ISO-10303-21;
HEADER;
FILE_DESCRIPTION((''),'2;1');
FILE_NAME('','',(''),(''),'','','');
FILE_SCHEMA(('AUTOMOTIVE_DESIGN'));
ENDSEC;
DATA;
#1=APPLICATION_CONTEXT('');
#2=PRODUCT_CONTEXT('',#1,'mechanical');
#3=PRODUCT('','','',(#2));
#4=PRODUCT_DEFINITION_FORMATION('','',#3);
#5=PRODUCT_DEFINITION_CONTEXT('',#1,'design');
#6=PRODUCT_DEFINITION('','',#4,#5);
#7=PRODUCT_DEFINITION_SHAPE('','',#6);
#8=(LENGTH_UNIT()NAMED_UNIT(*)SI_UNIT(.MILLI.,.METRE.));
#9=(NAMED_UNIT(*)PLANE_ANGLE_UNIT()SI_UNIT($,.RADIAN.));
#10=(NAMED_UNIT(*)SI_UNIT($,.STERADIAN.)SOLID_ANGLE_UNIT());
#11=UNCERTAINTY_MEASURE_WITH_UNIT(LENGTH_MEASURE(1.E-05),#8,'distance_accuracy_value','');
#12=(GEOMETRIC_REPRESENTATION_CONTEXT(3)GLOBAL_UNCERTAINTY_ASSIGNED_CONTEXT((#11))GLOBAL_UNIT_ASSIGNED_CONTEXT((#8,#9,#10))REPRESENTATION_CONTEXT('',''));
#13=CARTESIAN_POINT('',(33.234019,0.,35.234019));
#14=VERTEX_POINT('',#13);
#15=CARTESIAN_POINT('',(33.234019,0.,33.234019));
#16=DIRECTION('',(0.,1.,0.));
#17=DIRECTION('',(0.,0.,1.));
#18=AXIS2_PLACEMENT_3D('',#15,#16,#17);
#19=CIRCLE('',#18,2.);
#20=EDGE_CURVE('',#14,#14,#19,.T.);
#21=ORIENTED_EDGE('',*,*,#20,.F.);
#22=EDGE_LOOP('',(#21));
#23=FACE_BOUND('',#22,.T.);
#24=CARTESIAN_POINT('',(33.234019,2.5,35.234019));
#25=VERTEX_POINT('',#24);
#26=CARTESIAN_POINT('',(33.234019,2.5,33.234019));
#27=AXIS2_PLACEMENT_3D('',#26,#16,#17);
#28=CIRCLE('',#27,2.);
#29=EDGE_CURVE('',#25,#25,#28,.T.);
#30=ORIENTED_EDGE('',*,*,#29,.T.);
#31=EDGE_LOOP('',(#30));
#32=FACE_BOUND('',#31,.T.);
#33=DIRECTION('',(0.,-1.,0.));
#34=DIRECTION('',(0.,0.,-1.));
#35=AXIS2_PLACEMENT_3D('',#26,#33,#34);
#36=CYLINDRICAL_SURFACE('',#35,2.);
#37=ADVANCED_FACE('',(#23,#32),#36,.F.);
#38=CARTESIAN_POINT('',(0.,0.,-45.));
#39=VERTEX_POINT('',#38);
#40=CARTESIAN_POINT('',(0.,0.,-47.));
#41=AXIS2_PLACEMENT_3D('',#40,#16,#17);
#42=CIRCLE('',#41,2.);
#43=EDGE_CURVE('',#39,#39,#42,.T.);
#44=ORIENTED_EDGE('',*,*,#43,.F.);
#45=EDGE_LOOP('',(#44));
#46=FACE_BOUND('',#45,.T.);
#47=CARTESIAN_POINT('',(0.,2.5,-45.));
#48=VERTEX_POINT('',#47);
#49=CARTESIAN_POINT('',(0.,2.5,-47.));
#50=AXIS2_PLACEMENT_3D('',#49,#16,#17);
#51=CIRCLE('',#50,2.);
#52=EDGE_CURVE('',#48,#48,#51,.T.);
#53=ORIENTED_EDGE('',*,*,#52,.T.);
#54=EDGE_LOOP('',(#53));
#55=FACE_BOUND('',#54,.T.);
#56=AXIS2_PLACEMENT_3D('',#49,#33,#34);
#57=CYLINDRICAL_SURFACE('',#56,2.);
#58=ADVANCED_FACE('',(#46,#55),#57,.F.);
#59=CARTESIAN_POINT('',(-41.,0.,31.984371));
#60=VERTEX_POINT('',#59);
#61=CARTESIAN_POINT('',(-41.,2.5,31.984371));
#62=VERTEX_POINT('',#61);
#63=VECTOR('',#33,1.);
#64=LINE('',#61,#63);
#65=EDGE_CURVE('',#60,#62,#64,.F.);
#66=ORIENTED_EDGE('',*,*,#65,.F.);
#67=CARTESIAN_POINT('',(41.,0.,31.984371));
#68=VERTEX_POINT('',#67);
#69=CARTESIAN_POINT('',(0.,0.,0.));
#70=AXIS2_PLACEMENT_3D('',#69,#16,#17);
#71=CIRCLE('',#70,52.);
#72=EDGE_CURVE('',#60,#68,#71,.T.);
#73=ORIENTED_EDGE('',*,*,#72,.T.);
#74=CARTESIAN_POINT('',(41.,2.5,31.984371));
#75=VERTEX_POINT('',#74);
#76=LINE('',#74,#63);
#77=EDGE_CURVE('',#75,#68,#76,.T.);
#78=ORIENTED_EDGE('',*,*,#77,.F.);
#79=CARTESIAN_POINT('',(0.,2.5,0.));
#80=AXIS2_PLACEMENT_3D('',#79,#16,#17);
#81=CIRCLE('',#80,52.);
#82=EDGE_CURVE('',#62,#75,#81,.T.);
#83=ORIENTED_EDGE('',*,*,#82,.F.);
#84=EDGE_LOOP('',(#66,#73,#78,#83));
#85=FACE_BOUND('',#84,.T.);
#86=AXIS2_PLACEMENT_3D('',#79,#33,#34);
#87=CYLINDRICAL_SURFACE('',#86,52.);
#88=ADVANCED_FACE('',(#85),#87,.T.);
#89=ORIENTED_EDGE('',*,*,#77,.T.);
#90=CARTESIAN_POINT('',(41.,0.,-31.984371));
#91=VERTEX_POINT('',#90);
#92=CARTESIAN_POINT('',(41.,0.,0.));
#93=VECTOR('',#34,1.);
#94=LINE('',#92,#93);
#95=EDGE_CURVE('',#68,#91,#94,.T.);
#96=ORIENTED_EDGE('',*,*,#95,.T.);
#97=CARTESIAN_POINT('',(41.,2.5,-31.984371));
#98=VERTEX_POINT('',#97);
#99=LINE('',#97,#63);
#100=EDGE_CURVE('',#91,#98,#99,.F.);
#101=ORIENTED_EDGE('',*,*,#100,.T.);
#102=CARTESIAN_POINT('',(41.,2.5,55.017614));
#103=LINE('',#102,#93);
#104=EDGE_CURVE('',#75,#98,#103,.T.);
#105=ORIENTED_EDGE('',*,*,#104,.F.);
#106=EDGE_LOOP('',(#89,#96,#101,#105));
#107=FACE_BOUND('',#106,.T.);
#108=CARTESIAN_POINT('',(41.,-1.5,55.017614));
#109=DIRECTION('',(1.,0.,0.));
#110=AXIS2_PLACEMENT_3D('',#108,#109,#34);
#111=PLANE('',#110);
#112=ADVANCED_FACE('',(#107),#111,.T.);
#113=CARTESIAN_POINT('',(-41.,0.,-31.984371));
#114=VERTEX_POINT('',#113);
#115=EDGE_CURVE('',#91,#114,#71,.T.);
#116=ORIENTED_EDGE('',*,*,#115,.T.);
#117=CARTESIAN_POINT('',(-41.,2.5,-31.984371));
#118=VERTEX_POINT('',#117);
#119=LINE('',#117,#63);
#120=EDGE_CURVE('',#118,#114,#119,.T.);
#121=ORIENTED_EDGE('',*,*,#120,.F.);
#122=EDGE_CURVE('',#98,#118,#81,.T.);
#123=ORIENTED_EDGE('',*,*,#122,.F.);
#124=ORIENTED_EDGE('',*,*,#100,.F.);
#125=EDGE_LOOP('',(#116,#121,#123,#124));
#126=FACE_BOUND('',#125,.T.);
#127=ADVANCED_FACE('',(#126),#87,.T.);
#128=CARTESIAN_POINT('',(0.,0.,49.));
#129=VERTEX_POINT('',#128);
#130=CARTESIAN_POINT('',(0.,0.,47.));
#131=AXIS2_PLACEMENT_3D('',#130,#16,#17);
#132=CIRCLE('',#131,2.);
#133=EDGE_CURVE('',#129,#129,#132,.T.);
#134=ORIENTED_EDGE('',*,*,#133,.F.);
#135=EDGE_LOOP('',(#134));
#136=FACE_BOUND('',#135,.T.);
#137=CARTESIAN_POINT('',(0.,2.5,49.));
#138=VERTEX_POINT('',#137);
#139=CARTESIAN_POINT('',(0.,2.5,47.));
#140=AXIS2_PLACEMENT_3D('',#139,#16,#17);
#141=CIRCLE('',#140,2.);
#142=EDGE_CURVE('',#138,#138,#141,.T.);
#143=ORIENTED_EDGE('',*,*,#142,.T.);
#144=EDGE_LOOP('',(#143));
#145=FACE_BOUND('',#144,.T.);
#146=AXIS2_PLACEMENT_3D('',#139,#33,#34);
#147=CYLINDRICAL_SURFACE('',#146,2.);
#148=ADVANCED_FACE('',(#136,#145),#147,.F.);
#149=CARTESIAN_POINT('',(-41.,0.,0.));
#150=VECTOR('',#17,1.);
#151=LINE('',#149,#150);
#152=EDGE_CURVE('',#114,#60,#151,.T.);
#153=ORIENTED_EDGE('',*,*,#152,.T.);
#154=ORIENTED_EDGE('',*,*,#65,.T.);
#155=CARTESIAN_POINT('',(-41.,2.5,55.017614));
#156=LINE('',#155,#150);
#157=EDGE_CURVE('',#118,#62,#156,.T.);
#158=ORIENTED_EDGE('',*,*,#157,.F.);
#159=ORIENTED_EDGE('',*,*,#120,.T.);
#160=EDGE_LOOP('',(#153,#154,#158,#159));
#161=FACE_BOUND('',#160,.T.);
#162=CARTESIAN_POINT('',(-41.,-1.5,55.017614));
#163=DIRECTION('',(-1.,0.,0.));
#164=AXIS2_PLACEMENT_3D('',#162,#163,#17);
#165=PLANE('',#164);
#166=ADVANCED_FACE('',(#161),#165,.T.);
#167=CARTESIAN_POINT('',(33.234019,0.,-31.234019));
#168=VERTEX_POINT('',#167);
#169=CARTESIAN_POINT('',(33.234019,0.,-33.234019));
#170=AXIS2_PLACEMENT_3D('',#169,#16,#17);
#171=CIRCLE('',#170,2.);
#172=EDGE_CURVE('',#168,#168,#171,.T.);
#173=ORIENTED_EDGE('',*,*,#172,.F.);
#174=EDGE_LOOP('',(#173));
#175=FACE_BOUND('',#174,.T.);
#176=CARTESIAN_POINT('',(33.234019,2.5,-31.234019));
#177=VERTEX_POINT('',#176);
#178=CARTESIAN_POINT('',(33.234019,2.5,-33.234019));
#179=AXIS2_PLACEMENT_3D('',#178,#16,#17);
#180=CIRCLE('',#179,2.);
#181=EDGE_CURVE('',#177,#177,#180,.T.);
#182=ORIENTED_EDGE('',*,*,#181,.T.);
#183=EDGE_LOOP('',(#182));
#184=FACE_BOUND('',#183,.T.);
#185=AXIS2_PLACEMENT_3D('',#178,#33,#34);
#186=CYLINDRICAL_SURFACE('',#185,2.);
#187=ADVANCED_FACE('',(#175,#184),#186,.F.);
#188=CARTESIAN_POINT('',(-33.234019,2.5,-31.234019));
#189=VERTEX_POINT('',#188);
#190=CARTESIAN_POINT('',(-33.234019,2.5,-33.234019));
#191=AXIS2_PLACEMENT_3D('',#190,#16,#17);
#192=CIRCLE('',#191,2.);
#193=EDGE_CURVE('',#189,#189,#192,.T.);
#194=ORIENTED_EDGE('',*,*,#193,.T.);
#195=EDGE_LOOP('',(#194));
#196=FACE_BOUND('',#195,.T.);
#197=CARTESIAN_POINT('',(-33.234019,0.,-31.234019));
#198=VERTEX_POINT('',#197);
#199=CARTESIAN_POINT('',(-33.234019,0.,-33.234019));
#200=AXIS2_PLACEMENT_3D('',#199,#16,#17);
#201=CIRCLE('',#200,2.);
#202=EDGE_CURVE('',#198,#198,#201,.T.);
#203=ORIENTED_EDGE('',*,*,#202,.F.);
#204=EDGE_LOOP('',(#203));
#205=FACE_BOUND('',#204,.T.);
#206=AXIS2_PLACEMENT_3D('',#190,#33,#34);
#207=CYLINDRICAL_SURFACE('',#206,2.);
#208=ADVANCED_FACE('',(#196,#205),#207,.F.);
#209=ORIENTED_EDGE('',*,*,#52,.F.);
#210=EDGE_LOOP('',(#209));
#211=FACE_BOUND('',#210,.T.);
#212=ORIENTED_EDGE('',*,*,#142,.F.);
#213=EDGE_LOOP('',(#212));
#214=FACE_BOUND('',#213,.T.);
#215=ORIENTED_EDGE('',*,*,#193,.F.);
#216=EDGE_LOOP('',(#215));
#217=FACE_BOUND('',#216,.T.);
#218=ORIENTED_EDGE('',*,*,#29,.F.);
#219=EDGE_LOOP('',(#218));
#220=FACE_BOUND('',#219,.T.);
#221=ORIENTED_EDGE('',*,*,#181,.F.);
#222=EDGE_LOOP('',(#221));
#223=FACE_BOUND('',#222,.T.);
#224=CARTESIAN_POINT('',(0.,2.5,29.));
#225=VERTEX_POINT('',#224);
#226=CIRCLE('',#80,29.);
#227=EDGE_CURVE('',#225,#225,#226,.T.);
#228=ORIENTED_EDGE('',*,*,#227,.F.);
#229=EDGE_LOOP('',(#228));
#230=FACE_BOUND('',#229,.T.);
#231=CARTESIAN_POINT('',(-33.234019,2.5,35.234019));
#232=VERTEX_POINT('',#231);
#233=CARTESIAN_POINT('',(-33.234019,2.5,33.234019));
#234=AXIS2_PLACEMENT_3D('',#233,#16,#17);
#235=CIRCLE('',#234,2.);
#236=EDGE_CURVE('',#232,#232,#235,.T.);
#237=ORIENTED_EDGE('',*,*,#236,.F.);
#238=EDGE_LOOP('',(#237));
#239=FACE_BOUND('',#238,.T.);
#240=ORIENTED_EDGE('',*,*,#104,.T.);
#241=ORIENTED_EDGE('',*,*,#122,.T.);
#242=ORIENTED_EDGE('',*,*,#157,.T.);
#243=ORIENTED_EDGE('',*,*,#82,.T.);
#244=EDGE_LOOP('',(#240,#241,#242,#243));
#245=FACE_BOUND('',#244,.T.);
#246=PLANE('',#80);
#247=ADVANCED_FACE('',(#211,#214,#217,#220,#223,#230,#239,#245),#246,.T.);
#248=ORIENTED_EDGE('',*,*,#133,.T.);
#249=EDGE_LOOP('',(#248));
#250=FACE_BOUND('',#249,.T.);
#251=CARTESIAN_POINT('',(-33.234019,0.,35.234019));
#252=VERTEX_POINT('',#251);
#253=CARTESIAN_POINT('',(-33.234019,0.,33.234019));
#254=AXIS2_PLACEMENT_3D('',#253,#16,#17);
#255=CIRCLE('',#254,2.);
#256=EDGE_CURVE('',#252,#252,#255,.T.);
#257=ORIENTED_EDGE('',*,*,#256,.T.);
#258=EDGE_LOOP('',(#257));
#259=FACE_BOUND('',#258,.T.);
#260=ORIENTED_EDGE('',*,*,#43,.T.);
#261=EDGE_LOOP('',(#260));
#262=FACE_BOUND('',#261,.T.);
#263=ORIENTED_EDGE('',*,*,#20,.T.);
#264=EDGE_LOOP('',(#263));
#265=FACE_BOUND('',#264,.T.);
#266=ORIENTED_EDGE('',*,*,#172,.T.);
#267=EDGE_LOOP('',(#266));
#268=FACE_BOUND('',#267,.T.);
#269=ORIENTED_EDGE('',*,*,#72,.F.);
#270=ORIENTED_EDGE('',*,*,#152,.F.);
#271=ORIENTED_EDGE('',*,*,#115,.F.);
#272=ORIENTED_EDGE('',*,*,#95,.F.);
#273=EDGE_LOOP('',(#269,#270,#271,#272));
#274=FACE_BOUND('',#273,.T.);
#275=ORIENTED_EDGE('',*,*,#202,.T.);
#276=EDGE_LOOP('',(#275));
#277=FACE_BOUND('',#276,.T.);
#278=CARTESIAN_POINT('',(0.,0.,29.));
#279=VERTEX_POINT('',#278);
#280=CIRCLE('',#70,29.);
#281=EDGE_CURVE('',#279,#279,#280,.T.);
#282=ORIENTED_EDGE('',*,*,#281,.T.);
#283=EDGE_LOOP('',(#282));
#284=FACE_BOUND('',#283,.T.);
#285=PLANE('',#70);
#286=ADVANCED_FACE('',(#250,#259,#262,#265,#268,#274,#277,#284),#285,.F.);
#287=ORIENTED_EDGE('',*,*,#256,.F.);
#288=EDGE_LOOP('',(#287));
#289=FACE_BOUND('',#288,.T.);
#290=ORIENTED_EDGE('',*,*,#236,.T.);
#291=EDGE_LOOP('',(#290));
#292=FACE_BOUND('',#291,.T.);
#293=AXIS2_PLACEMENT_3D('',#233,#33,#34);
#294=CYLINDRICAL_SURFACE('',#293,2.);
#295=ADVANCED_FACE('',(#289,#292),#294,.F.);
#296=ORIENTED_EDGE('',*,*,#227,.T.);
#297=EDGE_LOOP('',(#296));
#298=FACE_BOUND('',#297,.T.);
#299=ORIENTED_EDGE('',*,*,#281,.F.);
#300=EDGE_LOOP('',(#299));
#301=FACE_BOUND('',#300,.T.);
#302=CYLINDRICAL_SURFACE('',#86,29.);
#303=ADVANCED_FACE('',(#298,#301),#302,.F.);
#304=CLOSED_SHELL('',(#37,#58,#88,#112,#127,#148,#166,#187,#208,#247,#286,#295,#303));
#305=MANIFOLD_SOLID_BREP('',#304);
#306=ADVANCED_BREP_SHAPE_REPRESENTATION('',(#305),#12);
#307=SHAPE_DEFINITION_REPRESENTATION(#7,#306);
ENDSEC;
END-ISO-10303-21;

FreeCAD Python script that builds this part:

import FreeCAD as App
import Part
import Sketcher

V = App.Vector
Q = App.Units.Quantity

doc = App.newDocument("Part")
body = doc.addObject("PartDesign::Body", "Body")

# Sketch on XZ plane
sketch1 = body.newObject("Sketcher::SketchObject", "Sketch")
sketch1.AttachmentSupport = (doc.getObject("XZ_Plane"), [""])
sketch1.MapMode = "FlatFace"
sketch1.addGeometry([
    Part.Circle(V(0, 0, 0), V(0, 0, 1), 52),  # 0
    Part.Circle(V(-33.2, -33.2, 0), V(0, 0, 1), 2),  # 1
    Part.Circle(V(0, -47, 0), V(0, 0, 1), 2),  # 2
    Part.Circle(V(0, 0, 0), V(0, 0, 1), 29),  # 3
    Part.Circle(V(-47, 0, 0), V(0, 0, 1), 2),  # 4
    Part.Circle(V(-33.2, 33.2, 0), V(0, 0, 1), 2),  # 5
    Part.Circle(V(33.2, -33.2, 0), V(0, 0, 1), 2),  # 6
    Part.Circle(V(47, 0, 0), V(0, 0, 1), 2),  # 7
    Part.Circle(V(0, 47, 0), V(0, 0, 1), 2),  # 8
    Part.Circle(V(33.2, 33.2, 0), V(0, 0, 1), 2),  # 9
], False)
sketch1.addConstraint([
    Sketcher.Constraint("Coincident", 0, 3, -1, 1),
    Sketcher.Constraint("Coincident", 3, 3, -1, 1),
    Sketcher.Constraint("Equal", 1, 2),
    Sketcher.Constraint("Equal", 2, 4),
    Sketcher.Constraint("Equal", 4, 5),
    Sketcher.Constraint("Equal", 5, 6),
    Sketcher.Constraint("Equal", 6, 7),
    Sketcher.Constraint("Equal", 7, 8),
    Sketcher.Constraint("Equal", 8, 9),
    Sketcher.Constraint("Symmetric", 5, 3, 6, 3, -1, 1),
    Sketcher.Constraint("Symmetric", 4, 3, 7, 3, -1, 1),
    Sketcher.Constraint("Symmetric", 2, 3, 8, 3, -1, 1),
    Sketcher.Constraint("Symmetric", 1, 3, 9, 3, -1, 1),
    Sketcher.Constraint("Symmetric", 1, 3, 6, 3, -2),
    Sketcher.Constraint("PointOnObject", 2, 3, -2),
    Sketcher.Constraint("PointOnObject", 4, 3, -1),
    Sketcher.Constraint("Diameter", 0, Q("104 mm")),
    Sketcher.Constraint("Diameter", 1, Q("4 mm")),
    Sketcher.Constraint("Diameter", 3, Q("58 mm")),
    Sketcher.Constraint("DistanceY", 2, 3, -1, 1, Q("47 mm")),
    Sketcher.Constraint("DistanceX", 4, 3, -1, 1, Q("47 mm")),
    Sketcher.Constraint("DistanceX", 1, 3, -1, 1, Q("33.234019 mm")),
    Sketcher.Constraint("DistanceY", 1, 3, -1, 1, Q("33.234019 mm")),
])
pad1 = body.newObject("PartDesign::Pad", "Pad")
pad1.Profile = sketch1
pad1.Length = 2.5
pad1.Reversed = True

# Sketch on XZ plane
sketch2 = body.newObject("Sketcher::SketchObject", "Sketch001")
sketch2.AttachmentSupport = (doc.getObject("XZ_Plane"), [""])
sketch2.MapMode = "FlatFace"
sketch2.AttachmentOffset = App.Placement(V(0, 0, -2.5), App.Rotation())
sketch2.addGeometry([
    Part.LineSegment(V(-91, -105, 0), V(-91, 105, 0)),  # 0
    Part.LineSegment(V(-91, 105, 0), V(91, 105, 0)),  # 1
    Part.LineSegment(V(91, 105, 0), V(91, -105, 0)),  # 2
    Part.LineSegment(V(91, -105, 0), V(-91, -105, 0)),  # 3
    Part.LineSegment(V(41, 55, 0), V(-41, 55, 0)),  # 4
    Part.LineSegment(V(-41, 55, 0), V(-41, -55, 0)),  # 5
    Part.LineSegment(V(-41, -55, 0), V(41, -55, 0)),  # 6
    Part.LineSegment(V(41, -55, 0), V(41, 55, 0)),  # 7
], False)
sketch2.addConstraint([
    Sketcher.Constraint("Coincident", 0, 2, 1, 1),
    Sketcher.Constraint("Coincident", 1, 2, 2, 1),
    Sketcher.Constraint("Coincident", 2, 2, 3, 1),
    Sketcher.Constraint("Coincident", 3, 2, 0, 1),
    Sketcher.Constraint("Coincident", 4, 2, 5, 1),
    Sketcher.Constraint("Coincident", 5, 2, 6, 1),
    Sketcher.Constraint("Coincident", 6, 2, 7, 1),
    Sketcher.Constraint("Coincident", 7, 2, 4, 1),
    Sketcher.Constraint("Vertical", 0),
    Sketcher.Constraint("Horizontal", 1),
    Sketcher.Constraint("Vertical", 2),
    Sketcher.Constraint("Horizontal", 3),
    Sketcher.Constraint("Horizontal", 4),
    Sketcher.Constraint("Vertical", 5),
    Sketcher.Constraint("Horizontal", 6),
    Sketcher.Constraint("Vertical", 7),
    Sketcher.Constraint("Symmetric", 0, 2, 2, 2, -1, 1),
    Sketcher.Constraint("Symmetric", 4, 2, 6, 2, -1, 1),
    Sketcher.Constraint("DistanceX", 1, 1, 1, 2, Q("182 mm")),
    Sketcher.Constraint("DistanceX", 4, 2, 4, 1, Q("82 mm")),
    Sketcher.Constraint("DistanceY", 4, 2, 0, 2, Q("50 mm")),
    Sketcher.Constraint("DistanceY", 0, 1, 0, 2, Q("210.035227 mm")),
])
pocket1 = body.newObject("PartDesign::Pocket", "Pocket")
pocket1.Profile = sketch2
pocket1.Length = 4
pocket1.Reversed = True

doc.recompute()
